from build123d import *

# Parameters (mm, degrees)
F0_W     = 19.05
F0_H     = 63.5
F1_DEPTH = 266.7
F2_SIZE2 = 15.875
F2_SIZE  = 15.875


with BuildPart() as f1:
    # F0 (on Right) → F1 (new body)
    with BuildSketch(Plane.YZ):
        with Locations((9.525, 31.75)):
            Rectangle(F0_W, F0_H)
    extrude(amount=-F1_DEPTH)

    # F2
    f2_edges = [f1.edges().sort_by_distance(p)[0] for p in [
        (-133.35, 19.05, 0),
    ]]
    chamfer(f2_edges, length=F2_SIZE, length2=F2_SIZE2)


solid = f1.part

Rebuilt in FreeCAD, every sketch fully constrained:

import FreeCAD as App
import Part
import Sketcher
Q = App.Units.Quantity


def edges_at(feature, points):
    """Names of the edges that pass closest to the given points."""
    edges = feature.Shape.Edges
    near = lambda p: min(range(len(edges)), key=lambda i: edges[i].distToShape(Part.Vertex(*p))[0])
    return sorted({f"Edge{near(p) + 1}" for p in points})


def add_polygon(sketch, points):
    """Adds a closed chain of lines whose ends are joined by coincident constraints."""
    first, n = sketch.GeometryCount, len(points)
    for a, b in zip(points, points[1:] + points[:1]):
        sketch.addGeometry(Part.LineSegment(App.Vector(*a, 0), App.Vector(*b, 0)), False)
    for i in range(n):
        sketch.addConstraint(Sketcher.Constraint("Coincident", first + i, 2, first + (i + 1) % n, 1))

doc = App.newDocument("Part")
body = doc.addObject("PartDesign::Body", "Body")

# Sketch on YZ plane
sketch1 = body.newObject("Sketcher::SketchObject", "Sketch")
sketch1.AttachmentSupport = (doc.getObject("YZ_Plane"), [""])
sketch1.MapMode = "FlatFace"
add_polygon(sketch1, [(0, 63.5), (0, 0), (19.05, 0), (19.05, 63.5)])  # lines 0-3
sketch1.addConstraint(Sketcher.Constraint("Vertical", 0))
sketch1.addConstraint(Sketcher.Constraint("Horizontal", 1))
sketch1.addConstraint(Sketcher.Constraint("Vertical", 2))
sketch1.addConstraint(Sketcher.Constraint("Horizontal", 3))
sketch1.addConstraint(Sketcher.Constraint("Coincident", 0, 2, -1, 1))
sketch1.addConstraint(Sketcher.Constraint("DistanceY", 0, 2, 0, 1, Q("2.5 in")))
sketch1.addConstraint(Sketcher.Constraint("DistanceX", 1, 1, 1, 2, Q("0.75 in")))
pad1 = body.newObject("PartDesign::Pad", "Pad")
pad1.Profile = sketch1
pad1.Length = Q("10.5 in")
pad1.Reversed = True
doc.recompute()

chamfer = body.newObject("PartDesign::Chamfer", "Chamfer")
chamfer.Base = (pad1, edges_at(pad1, [(-133.35, 19.05, 0)]))
chamfer.ChamferType = "Two distances"
chamfer.Size = Q("0.625 in")
chamfer.Size2 = Q("0.625 in")

doc.recompute()
